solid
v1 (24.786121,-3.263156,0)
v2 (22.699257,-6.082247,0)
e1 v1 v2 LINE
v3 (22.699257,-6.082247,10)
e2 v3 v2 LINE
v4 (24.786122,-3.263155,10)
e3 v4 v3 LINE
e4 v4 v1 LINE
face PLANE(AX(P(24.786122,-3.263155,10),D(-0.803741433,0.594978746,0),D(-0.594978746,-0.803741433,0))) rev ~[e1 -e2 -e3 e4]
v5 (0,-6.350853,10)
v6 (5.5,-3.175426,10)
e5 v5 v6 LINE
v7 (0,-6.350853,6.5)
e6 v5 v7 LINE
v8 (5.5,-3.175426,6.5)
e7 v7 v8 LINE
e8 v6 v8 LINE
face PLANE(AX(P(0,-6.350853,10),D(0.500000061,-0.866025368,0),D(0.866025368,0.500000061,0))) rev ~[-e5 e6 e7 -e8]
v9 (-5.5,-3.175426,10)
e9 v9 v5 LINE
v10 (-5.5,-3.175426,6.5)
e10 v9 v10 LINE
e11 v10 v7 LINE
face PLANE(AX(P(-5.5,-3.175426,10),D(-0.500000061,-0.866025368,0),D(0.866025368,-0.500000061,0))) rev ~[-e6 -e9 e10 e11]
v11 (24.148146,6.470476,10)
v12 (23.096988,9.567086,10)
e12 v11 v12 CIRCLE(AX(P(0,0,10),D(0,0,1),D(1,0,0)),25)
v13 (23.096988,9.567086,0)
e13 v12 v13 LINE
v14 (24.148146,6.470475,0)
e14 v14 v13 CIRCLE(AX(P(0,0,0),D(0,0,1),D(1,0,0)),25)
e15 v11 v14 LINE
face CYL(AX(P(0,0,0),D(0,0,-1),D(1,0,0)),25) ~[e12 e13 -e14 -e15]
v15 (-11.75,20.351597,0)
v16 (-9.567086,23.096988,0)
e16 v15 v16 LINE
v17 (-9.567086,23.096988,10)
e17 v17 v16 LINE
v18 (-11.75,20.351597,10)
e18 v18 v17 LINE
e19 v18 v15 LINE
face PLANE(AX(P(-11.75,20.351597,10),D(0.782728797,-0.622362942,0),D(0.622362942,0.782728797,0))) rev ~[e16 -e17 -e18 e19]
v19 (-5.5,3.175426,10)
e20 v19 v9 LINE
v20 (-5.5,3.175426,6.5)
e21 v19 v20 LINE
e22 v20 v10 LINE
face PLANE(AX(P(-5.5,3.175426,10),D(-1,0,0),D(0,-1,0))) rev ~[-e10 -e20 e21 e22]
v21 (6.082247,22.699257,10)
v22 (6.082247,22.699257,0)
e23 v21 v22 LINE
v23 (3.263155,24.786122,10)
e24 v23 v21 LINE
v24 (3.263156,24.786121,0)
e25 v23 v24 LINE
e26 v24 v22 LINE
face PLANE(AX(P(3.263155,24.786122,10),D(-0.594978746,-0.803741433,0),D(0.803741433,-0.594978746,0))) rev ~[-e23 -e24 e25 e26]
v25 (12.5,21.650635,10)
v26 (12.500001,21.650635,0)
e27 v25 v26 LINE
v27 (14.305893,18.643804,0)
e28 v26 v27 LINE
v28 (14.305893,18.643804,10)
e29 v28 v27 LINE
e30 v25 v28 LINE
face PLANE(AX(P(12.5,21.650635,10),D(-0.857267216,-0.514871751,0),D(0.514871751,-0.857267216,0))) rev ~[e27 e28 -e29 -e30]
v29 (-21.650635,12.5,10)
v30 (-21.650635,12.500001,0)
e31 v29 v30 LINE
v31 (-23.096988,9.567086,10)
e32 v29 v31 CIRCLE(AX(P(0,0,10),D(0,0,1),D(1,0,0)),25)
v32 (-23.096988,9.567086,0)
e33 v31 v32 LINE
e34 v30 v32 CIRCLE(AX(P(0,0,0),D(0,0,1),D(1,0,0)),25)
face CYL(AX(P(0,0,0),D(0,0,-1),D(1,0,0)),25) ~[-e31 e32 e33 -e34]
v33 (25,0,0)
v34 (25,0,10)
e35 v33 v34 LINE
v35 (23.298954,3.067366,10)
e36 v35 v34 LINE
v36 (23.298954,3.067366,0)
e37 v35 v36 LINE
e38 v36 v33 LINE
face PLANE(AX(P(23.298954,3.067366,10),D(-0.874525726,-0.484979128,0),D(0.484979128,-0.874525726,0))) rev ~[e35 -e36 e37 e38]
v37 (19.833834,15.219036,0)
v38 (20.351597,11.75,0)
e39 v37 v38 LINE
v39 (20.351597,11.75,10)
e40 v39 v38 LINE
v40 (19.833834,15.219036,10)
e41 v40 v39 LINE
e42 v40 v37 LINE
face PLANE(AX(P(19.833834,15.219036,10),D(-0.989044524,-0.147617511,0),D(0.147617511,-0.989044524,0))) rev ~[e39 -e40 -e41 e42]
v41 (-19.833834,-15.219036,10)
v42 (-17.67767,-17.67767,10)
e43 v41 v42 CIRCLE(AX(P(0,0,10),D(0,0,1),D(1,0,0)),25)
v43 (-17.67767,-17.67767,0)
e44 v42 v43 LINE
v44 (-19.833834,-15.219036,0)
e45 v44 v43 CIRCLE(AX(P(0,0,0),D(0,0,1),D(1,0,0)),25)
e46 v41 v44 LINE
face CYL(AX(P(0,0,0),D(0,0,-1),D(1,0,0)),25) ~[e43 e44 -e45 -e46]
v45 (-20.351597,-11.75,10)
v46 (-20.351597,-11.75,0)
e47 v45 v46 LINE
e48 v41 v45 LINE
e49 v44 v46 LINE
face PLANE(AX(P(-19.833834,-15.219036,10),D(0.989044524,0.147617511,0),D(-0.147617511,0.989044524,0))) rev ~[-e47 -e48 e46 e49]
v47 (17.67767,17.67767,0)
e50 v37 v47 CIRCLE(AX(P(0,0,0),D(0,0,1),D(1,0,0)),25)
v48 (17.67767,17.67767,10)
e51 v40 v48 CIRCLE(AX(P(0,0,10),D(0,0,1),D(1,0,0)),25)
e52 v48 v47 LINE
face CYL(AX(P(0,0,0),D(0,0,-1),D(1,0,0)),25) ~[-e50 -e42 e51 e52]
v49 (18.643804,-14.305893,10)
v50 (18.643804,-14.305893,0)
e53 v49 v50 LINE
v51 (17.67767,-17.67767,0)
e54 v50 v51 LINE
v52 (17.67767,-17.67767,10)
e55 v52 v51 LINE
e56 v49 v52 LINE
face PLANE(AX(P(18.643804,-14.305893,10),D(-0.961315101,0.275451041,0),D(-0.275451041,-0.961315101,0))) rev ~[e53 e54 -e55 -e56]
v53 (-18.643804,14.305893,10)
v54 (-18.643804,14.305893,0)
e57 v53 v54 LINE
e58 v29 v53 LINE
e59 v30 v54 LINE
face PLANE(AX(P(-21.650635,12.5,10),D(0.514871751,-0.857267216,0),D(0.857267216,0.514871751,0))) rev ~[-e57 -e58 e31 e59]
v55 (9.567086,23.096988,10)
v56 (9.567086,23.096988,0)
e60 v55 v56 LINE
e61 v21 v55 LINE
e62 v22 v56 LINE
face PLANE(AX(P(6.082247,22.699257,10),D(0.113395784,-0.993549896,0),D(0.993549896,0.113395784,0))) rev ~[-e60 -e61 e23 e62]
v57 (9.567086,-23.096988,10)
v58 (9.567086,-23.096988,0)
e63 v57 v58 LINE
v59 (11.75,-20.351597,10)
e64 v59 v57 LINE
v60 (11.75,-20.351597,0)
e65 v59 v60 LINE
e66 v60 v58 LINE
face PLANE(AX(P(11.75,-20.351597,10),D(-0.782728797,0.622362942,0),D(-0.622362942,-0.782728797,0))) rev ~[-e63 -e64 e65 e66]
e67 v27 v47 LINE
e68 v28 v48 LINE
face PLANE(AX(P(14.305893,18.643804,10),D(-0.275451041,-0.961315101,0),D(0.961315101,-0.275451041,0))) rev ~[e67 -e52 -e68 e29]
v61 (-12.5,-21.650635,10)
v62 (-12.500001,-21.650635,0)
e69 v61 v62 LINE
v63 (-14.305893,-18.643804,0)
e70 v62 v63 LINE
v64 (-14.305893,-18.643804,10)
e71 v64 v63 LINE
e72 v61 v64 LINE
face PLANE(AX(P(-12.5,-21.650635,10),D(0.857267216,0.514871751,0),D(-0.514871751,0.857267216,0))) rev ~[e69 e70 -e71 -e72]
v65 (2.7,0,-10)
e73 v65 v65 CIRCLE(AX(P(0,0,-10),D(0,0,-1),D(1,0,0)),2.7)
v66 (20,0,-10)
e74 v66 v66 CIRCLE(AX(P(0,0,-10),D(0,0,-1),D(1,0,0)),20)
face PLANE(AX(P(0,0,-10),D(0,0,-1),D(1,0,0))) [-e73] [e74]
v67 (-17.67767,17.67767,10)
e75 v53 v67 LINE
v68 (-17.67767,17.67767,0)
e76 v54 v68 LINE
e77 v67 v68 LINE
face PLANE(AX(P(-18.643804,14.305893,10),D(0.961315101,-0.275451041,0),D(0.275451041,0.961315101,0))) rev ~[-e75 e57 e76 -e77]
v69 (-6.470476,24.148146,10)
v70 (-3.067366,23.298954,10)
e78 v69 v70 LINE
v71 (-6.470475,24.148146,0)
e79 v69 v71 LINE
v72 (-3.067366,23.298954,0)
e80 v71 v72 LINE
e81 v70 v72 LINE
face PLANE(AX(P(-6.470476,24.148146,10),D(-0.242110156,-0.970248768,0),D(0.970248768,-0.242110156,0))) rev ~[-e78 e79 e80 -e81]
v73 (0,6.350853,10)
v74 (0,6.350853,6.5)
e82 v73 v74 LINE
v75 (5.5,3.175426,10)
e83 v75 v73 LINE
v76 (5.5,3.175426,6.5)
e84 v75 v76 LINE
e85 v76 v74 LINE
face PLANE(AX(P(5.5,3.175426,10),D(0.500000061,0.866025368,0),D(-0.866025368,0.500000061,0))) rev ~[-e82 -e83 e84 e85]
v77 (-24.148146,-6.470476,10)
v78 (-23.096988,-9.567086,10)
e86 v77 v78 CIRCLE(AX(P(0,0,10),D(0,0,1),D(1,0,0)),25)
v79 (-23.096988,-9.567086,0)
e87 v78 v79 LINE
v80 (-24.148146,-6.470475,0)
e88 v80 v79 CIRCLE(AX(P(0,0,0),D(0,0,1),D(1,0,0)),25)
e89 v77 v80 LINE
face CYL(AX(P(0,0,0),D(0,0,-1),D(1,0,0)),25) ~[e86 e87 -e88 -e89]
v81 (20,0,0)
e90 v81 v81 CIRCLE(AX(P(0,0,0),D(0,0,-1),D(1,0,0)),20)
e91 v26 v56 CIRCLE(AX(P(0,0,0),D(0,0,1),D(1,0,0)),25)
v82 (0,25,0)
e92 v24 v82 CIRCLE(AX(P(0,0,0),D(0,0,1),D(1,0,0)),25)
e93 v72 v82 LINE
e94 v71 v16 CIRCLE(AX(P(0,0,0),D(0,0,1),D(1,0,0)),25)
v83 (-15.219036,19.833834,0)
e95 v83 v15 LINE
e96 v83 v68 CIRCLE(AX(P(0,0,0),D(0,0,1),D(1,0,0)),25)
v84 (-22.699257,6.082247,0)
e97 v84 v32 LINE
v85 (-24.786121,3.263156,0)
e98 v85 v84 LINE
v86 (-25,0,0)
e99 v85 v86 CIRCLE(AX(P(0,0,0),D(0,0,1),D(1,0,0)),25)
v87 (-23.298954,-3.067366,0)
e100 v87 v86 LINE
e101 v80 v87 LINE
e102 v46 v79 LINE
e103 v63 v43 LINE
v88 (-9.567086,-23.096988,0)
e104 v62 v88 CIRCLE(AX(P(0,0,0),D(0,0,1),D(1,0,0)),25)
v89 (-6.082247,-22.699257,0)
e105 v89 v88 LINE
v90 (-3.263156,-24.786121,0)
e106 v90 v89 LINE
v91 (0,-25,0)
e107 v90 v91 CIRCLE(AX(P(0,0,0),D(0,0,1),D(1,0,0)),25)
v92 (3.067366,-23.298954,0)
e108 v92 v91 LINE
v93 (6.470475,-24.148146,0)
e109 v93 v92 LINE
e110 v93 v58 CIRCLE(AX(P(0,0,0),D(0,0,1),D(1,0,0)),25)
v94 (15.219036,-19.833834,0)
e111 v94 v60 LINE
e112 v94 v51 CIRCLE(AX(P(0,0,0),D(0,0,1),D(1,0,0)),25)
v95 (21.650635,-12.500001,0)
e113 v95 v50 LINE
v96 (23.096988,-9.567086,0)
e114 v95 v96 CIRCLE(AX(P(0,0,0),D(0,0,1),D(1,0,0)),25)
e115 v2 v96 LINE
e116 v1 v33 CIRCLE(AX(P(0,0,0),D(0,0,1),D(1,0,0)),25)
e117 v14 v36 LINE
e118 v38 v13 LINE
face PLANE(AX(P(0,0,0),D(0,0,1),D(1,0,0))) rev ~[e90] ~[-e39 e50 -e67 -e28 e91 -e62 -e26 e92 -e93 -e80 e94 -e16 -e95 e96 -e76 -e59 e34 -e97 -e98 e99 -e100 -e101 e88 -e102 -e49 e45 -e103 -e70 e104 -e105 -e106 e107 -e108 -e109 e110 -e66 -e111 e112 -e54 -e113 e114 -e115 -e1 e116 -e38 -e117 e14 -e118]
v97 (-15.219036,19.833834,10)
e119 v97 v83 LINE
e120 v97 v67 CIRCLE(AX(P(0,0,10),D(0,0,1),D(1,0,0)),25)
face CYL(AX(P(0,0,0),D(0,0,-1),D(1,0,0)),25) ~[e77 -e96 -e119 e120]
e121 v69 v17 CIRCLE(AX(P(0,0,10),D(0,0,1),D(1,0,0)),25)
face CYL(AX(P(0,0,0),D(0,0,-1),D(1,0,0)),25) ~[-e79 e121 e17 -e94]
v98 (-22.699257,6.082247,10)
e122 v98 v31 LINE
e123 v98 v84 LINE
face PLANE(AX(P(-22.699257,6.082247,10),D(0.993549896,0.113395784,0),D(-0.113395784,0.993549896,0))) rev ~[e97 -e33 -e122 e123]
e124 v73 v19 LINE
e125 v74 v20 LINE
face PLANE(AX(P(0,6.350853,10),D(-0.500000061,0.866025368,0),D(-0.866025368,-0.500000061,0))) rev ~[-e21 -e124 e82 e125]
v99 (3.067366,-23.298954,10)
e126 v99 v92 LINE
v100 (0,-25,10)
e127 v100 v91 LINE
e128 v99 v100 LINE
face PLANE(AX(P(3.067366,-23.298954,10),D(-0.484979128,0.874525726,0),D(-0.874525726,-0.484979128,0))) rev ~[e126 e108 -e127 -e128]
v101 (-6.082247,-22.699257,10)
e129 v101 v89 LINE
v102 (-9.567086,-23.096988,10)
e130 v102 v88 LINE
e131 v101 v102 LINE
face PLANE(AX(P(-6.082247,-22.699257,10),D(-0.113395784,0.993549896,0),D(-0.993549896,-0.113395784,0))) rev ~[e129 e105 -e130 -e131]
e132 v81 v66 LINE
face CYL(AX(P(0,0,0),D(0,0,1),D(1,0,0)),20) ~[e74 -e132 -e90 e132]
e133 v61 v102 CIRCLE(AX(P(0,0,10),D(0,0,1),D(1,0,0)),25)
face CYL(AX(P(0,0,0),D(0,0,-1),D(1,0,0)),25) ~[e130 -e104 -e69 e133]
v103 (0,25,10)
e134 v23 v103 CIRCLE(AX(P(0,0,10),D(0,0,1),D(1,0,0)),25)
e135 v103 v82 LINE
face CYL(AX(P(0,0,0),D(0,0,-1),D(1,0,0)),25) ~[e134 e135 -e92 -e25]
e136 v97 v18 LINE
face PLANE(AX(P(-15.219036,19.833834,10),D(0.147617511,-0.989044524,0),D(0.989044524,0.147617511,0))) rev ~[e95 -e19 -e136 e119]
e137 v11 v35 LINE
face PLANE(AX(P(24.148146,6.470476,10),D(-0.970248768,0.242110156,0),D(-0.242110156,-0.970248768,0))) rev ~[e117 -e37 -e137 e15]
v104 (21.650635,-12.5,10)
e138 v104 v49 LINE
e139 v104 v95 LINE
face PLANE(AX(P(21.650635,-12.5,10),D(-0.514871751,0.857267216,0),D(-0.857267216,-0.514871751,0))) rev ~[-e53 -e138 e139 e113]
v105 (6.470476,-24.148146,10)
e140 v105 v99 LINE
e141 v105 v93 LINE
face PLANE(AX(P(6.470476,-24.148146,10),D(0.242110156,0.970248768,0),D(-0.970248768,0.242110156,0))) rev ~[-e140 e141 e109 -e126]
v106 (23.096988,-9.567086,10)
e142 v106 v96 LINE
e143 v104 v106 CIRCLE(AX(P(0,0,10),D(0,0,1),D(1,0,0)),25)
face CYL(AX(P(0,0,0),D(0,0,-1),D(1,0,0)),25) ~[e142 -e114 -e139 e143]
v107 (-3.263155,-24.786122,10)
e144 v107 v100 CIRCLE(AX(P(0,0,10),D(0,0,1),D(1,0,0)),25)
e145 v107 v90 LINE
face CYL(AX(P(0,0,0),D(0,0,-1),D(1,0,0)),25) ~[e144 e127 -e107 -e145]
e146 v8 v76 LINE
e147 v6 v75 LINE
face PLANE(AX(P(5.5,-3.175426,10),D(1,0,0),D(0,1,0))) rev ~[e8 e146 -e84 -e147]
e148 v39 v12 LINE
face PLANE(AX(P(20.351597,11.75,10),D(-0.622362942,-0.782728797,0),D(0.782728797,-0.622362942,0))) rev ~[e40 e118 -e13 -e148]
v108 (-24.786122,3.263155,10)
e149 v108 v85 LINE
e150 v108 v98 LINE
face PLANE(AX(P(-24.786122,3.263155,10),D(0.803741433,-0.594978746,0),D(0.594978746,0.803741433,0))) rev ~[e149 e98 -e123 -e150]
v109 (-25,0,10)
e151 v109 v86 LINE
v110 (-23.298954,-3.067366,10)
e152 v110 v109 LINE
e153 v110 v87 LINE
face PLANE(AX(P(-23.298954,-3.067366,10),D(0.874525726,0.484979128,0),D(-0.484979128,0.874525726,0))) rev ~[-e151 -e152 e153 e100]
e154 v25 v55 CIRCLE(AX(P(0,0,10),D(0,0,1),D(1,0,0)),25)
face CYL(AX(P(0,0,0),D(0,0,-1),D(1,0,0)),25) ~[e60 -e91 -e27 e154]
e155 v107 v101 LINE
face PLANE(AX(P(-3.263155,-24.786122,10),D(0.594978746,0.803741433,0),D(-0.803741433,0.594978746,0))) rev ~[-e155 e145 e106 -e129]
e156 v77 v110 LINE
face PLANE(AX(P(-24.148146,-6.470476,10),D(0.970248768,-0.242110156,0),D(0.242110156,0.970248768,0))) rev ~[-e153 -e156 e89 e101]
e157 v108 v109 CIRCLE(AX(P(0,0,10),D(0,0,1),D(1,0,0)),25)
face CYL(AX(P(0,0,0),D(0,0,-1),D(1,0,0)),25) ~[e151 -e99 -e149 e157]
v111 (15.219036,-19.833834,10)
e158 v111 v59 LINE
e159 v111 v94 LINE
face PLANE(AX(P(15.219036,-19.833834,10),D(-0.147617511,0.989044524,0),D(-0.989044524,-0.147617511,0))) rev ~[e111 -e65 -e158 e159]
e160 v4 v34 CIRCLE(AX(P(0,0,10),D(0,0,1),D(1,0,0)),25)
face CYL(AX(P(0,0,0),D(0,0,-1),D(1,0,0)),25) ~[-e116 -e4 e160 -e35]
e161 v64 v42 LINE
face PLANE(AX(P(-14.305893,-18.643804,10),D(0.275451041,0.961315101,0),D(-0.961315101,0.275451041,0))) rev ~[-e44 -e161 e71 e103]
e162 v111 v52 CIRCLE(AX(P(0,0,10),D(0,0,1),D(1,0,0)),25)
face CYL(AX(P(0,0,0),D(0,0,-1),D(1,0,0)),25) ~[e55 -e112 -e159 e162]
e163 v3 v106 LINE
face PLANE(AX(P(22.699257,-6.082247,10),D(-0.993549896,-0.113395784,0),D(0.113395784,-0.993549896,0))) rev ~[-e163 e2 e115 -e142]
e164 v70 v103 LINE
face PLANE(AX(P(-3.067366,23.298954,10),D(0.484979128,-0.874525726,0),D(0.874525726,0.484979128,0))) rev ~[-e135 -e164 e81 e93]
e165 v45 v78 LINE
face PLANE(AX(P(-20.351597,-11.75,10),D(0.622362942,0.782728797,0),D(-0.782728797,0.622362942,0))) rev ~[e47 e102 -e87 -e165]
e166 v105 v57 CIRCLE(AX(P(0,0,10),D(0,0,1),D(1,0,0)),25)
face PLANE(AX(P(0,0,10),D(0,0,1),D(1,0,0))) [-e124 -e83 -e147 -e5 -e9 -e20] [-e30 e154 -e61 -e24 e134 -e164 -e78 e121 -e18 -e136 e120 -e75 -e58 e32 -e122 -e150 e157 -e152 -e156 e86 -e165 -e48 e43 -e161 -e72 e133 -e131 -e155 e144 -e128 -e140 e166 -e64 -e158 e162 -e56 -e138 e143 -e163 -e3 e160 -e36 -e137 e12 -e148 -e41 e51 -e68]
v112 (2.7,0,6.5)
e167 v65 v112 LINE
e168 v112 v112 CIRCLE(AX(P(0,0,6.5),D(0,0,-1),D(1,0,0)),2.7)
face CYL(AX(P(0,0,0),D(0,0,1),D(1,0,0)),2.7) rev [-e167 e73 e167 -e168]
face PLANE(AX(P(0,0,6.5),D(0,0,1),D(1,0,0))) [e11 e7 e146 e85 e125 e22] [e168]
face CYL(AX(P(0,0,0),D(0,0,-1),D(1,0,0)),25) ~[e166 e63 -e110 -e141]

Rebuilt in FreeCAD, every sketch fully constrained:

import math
import FreeCAD as App
import Part
import Sketcher

V = App.Vector
Q = App.Units.Quantity


def add_polygon(sketch, points):
    """Adds a closed chain of lines whose ends are joined by coincident constraints."""
    first, n = sketch.GeometryCount, len(points)
    for a, b in zip(points, points[1:] + points[:1]):
        sketch.addGeometry(Part.LineSegment(App.Vector(*a, 0), App.Vector(*b, 0)), False)
    for i in range(n):
        sketch.addConstraint(Sketcher.Constraint("Coincident", first + i, 2, first + (i + 1) % n, 1))

doc = App.newDocument("Part")
params = doc.addObject("Spreadsheet::Sheet", "Params")
for row, (alias, value) in enumerate([
    ("sketch1_diameter", "50 mm"),
    ("sketch1_diameter2", "5.4 mm"),
    ("pad1_length", "10 mm"),
    ("pocket1_length", "3.5 mm"),
    ("sketch4_diameter", "40 mm"),
    ("sketch4_diameter2", "5.4 mm"),
    ("pad2_length", "10 mm"),
], start=1):
    params.set(f"A{row}", alias)
    params.set(f"B{row}", "=" + value)
    params.setAlias(f"B{row}", alias)

body = doc.addObject("PartDesign::Body", "Body")

# Sketch on XY plane
sketch1 = body.newObject("Sketcher::SketchObject", "Sketch")
sketch1.AttachmentSupport = (doc.getObject("XY_Plane"), [""])
sketch1.MapMode = "FlatFace"
sketch1.addGeometry([
    Part.Circle(V(0, 0, 0), V(0, 0, 1), 25),
    Part.Circle(V(0, 0, 0), V(0, 0, 1), 2.7),
], False)
sketch1.addConstraint([
    Sketcher.Constraint("Coincident", 0, 3, -1, 1),
    Sketcher.Constraint("Coincident", 1, 3, -1, 1),
    Sketcher.Constraint("Diameter", 0, Q("50 mm")),
    Sketcher.Constraint("Diameter", 1, Q("5.4 mm")),
])
sketch1.setExpression("Constraints[2]", "Params.sketch1_diameter")
sketch1.setExpression("Constraints[3]", "Params.sketch1_diameter2")
pad1 = body.newObject("PartDesign::Pad", "Pad")
pad1.Profile = sketch1
pad1.setExpression("Length", "Params.pad1_length")

# Sketch on XY plane
sketch2 = body.newObject("Sketcher::SketchObject", "Sketch001")
sketch2.AttachmentSupport = (doc.getObject("XY_Plane"), [""])
sketch2.MapMode = "FlatFace"
sketch2.AttachmentOffset = App.Placement(V(0, 0, 10), App.Rotation())
add_polygon(sketch2, [(5.5, -3.175426), (5.5, 3.175426), (0, 6.350853), (-5.5, 3.175426), (-5.5, -3.175426), (0, -6.350853)])  # lines 0-5
sketch2.addConstraint([
    Sketcher.Constraint("Vertical", 0),
    Sketcher.Constraint("Vertical", 3),
    Sketcher.Constraint("Symmetric", 0, 2, 3, 2, -1, 1),
    Sketcher.Constraint("Symmetric", 1, 2, 4, 2, -1, 1),
    Sketcher.Constraint("PointOnObject", 1, 2, -2),
    Sketcher.Constraint("Parallel", 2, 5),
    Sketcher.Constraint("Horizontal", 0, 2, 2, 2),
    Sketcher.Constraint("Angle", 1, Q("149.999996 deg")),
    Sketcher.Constraint("DistanceX", 2, 2, 0, 2, Q("11 mm")),
    Sketcher.Constraint("DistanceY", 0, 1, 0, 2, Q("6.350852 mm")),
])
pocket1 = body.newObject("PartDesign::Pocket", "Pocket")
pocket1.Profile = sketch2
pocket1.setExpression("Length", "Params.pocket1_length")

# Sketch on XY plane
sketch3 = body.newObject("Sketcher::SketchObject", "Sketch002")
sketch3.AttachmentSupport = (doc.getObject("XY_Plane"), [""])
sketch3.MapMode = "FlatFace"
sketch3.AttachmentOffset = App.Placement(V(0, 0, 10), App.Rotation())
sketch3.addGeometry([
    Part.LineSegment(V(24.148146, 6.470476, 0), V(23.298954, 3.067366, 0)),
    Part.LineSegment(V(23.298954, 3.067366, 0), V(25, 0, 0)),
    Part.ArcOfCircle(Part.Circle(V(23.298954, 3.067365, 0), V(0, 0, 1), 3.507462), math.radians(-60.988891), math.radians(75.988885)),
], False)
sketch3.addConstraint([
    Sketcher.Constraint("Coincident", 0, 2, 1, 1),
    Sketcher.Constraint("Coincident", 1, 2, 2, 1),
    Sketcher.Constraint("Coincident", 2, 2, 0, 1),
    Sketcher.Constraint("Coincident", 0, 2, 2, 3),
    Sketcher.Constraint("PointOnObject", 1, 2, -1),
    Sketcher.Constraint("DistanceX", -1, 1, 1, 2, Q("25 mm")),
    Sketcher.Constraint("Radius", 2, Q("3.507462 mm")),
    Sketcher.Constraint("DistanceX", 0, 2, 2, 2, Q("0.849192 mm")),
    Sketcher.Constraint("DistanceX", -1, 1, 2, 3, Q("23.298954 mm")),
])
pocket2 = body.newObject("PartDesign::Pocket", "Pocket001")
pocket2.Profile = sketch3
pocket2.Type = "ThroughAll"
doc.recompute()

polarpattern = body.newObject("PartDesign::PolarPattern", "PolarPattern")
polarpattern.Originals = [pocket2]
polarpattern.Axis = (doc.getObject("Z_Axis"), [""])
polarpattern.Angle = 360
polarpattern.Occurrences = 16
body.Tip = polarpattern

# Sketch on XY plane
sketch4 = body.newObject("Sketcher::SketchObject", "Sketch003")
sketch4.AttachmentSupport = (doc.getObject("XY_Plane"), [""])
sketch4.MapMode = "FlatFace"
sketch4.addGeometry([
    Part.Circle(V(0, 0, 0), V(0, 0, 1), 20),
    Part.Circle(V(0, 0, 0), V(0, 0, 1), 2.7),
], False)
sketch4.addConstraint([
    Sketcher.Constraint("Coincident", 0, 3, -1, 1),
    Sketcher.Constraint("Coincident", 1, 3, -1, 1),
    Sketcher.Constraint("Diameter", 0, Q("40 mm")),
    Sketcher.Constraint("Diameter", 1, Q("5.4 mm")),
])
sketch4.setExpression("Constraints[2]", "Params.sketch4_diameter")
sketch4.setExpression("Constraints[3]", "Params.sketch4_diameter2")
pad2 = body.newObject("PartDesign::Pad", "Pad001")
pad2.Profile = sketch4
pad2.setExpression("Length", "Params.pad2_length")
pad2.Reversed = True

doc.recompute()
